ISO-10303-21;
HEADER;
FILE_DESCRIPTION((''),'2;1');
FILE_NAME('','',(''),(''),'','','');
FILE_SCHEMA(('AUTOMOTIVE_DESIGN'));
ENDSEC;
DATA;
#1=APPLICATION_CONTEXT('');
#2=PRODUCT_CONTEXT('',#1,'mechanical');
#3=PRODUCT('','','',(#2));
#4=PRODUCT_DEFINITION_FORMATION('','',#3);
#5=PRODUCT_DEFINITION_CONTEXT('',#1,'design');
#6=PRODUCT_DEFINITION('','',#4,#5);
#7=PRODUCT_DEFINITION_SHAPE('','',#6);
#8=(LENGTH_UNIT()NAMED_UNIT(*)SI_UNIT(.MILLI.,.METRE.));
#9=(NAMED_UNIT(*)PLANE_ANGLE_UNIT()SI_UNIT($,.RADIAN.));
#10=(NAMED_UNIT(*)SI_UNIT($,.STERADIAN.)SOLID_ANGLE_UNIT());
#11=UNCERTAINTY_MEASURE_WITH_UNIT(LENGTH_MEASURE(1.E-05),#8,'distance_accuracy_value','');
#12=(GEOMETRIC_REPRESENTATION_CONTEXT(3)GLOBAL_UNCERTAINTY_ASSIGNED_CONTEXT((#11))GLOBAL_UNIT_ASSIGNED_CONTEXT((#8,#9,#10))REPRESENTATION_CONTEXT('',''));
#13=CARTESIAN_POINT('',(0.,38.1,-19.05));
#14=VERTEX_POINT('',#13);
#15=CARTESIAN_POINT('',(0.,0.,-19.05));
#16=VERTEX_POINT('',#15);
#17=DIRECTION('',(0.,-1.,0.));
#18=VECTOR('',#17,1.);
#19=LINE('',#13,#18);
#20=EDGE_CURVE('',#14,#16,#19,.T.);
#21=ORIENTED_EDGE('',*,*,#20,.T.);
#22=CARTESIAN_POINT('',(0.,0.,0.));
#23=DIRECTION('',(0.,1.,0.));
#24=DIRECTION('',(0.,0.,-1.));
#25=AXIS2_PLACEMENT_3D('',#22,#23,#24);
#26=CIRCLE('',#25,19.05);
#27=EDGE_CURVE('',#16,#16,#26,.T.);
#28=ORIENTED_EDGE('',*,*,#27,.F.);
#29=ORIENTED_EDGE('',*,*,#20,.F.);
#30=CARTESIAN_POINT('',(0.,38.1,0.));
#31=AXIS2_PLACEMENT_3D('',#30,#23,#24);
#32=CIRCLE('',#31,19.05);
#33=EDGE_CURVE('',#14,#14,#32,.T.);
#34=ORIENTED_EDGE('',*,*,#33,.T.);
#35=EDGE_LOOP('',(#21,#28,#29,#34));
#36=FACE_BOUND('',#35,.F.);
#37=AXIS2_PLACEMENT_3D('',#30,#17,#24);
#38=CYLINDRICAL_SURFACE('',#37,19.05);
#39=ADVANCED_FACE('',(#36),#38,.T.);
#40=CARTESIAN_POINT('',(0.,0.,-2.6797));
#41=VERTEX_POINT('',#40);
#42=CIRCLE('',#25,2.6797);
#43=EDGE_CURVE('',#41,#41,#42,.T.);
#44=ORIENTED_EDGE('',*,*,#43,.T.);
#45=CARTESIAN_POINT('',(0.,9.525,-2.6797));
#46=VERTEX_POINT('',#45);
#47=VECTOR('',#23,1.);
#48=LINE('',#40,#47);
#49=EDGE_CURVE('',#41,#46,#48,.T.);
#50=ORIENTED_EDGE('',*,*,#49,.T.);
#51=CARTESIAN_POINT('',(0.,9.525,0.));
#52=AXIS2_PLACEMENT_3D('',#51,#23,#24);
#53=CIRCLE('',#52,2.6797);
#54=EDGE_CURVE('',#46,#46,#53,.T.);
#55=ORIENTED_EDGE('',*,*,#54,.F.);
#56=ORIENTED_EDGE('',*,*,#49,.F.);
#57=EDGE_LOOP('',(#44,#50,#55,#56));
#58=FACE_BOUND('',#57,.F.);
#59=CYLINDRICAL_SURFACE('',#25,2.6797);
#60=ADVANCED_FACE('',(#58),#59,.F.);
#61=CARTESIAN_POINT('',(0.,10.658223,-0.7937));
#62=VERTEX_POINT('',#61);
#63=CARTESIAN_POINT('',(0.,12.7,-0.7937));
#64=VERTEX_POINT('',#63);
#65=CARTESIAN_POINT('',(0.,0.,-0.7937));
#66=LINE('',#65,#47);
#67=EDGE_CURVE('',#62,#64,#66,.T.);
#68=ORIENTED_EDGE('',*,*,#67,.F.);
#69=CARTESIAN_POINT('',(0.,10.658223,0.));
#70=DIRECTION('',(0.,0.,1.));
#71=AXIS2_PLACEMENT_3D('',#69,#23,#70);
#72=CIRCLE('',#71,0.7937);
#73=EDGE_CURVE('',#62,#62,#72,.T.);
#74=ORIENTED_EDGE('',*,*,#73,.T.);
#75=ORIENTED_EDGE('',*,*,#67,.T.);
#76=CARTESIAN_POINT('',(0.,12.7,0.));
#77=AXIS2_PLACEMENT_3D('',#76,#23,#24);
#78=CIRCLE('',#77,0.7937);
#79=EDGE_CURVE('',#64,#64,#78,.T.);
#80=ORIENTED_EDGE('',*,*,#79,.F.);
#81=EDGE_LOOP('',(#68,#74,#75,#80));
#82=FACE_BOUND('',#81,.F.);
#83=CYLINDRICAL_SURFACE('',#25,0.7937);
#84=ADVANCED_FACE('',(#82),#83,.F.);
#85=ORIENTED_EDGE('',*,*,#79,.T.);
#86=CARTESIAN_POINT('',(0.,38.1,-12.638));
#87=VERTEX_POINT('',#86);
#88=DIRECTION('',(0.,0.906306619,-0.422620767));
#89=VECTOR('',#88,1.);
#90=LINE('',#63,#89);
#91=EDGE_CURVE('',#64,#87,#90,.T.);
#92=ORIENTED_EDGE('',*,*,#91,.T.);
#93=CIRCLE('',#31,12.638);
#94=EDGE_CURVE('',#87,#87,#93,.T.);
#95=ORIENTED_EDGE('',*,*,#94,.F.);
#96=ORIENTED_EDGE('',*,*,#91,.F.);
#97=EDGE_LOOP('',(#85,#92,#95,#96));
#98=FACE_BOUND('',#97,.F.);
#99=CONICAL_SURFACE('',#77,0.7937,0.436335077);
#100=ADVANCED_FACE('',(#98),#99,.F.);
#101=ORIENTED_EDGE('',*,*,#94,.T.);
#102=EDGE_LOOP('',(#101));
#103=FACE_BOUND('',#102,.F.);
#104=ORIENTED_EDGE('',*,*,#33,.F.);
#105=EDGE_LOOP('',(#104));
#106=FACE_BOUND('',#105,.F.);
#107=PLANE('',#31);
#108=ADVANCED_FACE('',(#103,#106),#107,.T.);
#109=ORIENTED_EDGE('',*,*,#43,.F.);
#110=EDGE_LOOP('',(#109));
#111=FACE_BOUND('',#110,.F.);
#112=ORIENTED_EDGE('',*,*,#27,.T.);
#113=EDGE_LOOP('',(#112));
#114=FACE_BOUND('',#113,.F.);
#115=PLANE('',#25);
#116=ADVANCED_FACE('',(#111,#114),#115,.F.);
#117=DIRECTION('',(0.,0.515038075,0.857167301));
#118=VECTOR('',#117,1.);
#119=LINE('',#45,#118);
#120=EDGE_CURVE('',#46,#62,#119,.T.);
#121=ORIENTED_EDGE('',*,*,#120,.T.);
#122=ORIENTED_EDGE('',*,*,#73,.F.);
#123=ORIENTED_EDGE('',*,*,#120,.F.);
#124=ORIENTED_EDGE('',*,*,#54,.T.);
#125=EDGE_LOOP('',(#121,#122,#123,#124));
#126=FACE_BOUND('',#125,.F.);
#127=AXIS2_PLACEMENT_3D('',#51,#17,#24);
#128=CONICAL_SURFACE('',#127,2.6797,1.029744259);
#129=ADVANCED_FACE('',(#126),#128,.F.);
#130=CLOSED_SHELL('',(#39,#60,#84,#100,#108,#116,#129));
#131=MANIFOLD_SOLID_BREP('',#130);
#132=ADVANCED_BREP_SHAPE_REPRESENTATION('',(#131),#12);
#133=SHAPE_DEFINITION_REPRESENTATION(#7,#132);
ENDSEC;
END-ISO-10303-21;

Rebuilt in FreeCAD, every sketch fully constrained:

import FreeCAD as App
import Part
import Sketcher
from FreeCAD import Vector
Q = App.Units.Quantity


def add_polygon(sketch, points):
    """Adds a closed chain of lines whose ends are joined by coincident constraints."""
    first, n = sketch.GeometryCount, len(points)
    for a, b in zip(points, points[1:] + points[:1]):
        sketch.addGeometry(Part.LineSegment(App.Vector(*a, 0), App.Vector(*b, 0)), False)
    for i in range(n):
        sketch.addConstraint(Sketcher.Constraint("Coincident", first + i, 2, first + (i + 1) % n, 1))

doc = App.newDocument("Part")
params = doc.addObject("Spreadsheet::Sheet", "Params")
for row, (alias, value) in enumerate([
    ("sketch1_width", "0.5 in"),
    ("sketch1_width2", "1.5 in"),
    ("revolution_angle", "360 deg"),
    ("sketch2_diameter", "0.211 in"),
    ("hole_diameter", "0.211 in"),
    ("hole_depth", "0.375 in"),
], start=1):
    params.set(f"A{row}", alias)
    params.set(f"B{row}", "=" + value)
    params.setAlias(f"B{row}", alias)

body = doc.addObject("PartDesign::Body", "Body")

# Sketch on YZ plane
sketch1 = body.newObject("Sketcher::SketchObject", "Sketch")
sketch1.AttachmentSupport = (doc.getObject("YZ_Plane"), [""])
sketch1.MapMode = "FlatFace"
add_polygon(sketch1, [(12.7, -0.7937), (0, -0.7937), (0, -19.05), (38.1, -19.05), (38.1, -12.638)])  # lines 0-4
sketch1.addConstraint([
    Sketcher.Constraint("Horizontal", 0),
    Sketcher.Constraint("Vertical", 1),
    Sketcher.Constraint("Horizontal", 2),
    Sketcher.Constraint("Vertical", 3),
    Sketcher.Constraint("PointOnObject", 0, 2, -2),
    Sketcher.Constraint("DistanceX", 0, 2, 0, 1, Q("0.5 in")),
    Sketcher.Constraint("DistanceX", 2, 1, 2, 2, Q("1.5 in")),
    Sketcher.Constraint("Angle", 4, Q("154.9998 deg")),
    Sketcher.Constraint("DistanceY", 1, 2, -1, 1, Q("0.75 in")),
    Sketcher.Constraint("DistanceY", 0, 2, -1, 1, Q("0.031248 in")),
])
sketch1.setExpression("Constraints[10]", "Params.sketch1_width")
sketch1.setExpression("Constraints[11]", "Params.sketch1_width2")
revolution = body.newObject("PartDesign::Revolution", "Revolution")
revolution.Profile = sketch1
revolution.ReferenceAxis = (sketch1, ["H_Axis"])
revolution.setExpression("Angle", "Params.revolution_angle")

# Sketch on XZ plane
sketch2 = body.newObject("Sketcher::SketchObject", "Sketch001")
sketch2.AttachmentSupport = (doc.getObject("XZ_Plane"), [""])
sketch2.MapMode = "FlatFace"
sketch2.addGeometry(Part.Circle(Vector(0, 0, 0), Vector(0, 0, 1), 2.6797), False)
sketch2.addConstraint([
    Sketcher.Constraint("Coincident", 0, 3, -1, 1),
    Sketcher.Constraint("Diameter", 0, Q("0.211 in")),
])
sketch2.setExpression("Constraints[1]", "Params.sketch2_diameter")
doc.recompute()
hole = body.newObject("PartDesign::Hole", "Hole")
hole.Profile = sketch2
hole.ThreadType = "None"
hole.setExpression("Diameter", "Params.hole_diameter")
hole.DepthType = "Dimension"
hole.setExpression("Depth", "Params.hole_depth")
hole.DrillPoint = "Angled"
hole.DrillPointAngle = 118

doc.recompute()
